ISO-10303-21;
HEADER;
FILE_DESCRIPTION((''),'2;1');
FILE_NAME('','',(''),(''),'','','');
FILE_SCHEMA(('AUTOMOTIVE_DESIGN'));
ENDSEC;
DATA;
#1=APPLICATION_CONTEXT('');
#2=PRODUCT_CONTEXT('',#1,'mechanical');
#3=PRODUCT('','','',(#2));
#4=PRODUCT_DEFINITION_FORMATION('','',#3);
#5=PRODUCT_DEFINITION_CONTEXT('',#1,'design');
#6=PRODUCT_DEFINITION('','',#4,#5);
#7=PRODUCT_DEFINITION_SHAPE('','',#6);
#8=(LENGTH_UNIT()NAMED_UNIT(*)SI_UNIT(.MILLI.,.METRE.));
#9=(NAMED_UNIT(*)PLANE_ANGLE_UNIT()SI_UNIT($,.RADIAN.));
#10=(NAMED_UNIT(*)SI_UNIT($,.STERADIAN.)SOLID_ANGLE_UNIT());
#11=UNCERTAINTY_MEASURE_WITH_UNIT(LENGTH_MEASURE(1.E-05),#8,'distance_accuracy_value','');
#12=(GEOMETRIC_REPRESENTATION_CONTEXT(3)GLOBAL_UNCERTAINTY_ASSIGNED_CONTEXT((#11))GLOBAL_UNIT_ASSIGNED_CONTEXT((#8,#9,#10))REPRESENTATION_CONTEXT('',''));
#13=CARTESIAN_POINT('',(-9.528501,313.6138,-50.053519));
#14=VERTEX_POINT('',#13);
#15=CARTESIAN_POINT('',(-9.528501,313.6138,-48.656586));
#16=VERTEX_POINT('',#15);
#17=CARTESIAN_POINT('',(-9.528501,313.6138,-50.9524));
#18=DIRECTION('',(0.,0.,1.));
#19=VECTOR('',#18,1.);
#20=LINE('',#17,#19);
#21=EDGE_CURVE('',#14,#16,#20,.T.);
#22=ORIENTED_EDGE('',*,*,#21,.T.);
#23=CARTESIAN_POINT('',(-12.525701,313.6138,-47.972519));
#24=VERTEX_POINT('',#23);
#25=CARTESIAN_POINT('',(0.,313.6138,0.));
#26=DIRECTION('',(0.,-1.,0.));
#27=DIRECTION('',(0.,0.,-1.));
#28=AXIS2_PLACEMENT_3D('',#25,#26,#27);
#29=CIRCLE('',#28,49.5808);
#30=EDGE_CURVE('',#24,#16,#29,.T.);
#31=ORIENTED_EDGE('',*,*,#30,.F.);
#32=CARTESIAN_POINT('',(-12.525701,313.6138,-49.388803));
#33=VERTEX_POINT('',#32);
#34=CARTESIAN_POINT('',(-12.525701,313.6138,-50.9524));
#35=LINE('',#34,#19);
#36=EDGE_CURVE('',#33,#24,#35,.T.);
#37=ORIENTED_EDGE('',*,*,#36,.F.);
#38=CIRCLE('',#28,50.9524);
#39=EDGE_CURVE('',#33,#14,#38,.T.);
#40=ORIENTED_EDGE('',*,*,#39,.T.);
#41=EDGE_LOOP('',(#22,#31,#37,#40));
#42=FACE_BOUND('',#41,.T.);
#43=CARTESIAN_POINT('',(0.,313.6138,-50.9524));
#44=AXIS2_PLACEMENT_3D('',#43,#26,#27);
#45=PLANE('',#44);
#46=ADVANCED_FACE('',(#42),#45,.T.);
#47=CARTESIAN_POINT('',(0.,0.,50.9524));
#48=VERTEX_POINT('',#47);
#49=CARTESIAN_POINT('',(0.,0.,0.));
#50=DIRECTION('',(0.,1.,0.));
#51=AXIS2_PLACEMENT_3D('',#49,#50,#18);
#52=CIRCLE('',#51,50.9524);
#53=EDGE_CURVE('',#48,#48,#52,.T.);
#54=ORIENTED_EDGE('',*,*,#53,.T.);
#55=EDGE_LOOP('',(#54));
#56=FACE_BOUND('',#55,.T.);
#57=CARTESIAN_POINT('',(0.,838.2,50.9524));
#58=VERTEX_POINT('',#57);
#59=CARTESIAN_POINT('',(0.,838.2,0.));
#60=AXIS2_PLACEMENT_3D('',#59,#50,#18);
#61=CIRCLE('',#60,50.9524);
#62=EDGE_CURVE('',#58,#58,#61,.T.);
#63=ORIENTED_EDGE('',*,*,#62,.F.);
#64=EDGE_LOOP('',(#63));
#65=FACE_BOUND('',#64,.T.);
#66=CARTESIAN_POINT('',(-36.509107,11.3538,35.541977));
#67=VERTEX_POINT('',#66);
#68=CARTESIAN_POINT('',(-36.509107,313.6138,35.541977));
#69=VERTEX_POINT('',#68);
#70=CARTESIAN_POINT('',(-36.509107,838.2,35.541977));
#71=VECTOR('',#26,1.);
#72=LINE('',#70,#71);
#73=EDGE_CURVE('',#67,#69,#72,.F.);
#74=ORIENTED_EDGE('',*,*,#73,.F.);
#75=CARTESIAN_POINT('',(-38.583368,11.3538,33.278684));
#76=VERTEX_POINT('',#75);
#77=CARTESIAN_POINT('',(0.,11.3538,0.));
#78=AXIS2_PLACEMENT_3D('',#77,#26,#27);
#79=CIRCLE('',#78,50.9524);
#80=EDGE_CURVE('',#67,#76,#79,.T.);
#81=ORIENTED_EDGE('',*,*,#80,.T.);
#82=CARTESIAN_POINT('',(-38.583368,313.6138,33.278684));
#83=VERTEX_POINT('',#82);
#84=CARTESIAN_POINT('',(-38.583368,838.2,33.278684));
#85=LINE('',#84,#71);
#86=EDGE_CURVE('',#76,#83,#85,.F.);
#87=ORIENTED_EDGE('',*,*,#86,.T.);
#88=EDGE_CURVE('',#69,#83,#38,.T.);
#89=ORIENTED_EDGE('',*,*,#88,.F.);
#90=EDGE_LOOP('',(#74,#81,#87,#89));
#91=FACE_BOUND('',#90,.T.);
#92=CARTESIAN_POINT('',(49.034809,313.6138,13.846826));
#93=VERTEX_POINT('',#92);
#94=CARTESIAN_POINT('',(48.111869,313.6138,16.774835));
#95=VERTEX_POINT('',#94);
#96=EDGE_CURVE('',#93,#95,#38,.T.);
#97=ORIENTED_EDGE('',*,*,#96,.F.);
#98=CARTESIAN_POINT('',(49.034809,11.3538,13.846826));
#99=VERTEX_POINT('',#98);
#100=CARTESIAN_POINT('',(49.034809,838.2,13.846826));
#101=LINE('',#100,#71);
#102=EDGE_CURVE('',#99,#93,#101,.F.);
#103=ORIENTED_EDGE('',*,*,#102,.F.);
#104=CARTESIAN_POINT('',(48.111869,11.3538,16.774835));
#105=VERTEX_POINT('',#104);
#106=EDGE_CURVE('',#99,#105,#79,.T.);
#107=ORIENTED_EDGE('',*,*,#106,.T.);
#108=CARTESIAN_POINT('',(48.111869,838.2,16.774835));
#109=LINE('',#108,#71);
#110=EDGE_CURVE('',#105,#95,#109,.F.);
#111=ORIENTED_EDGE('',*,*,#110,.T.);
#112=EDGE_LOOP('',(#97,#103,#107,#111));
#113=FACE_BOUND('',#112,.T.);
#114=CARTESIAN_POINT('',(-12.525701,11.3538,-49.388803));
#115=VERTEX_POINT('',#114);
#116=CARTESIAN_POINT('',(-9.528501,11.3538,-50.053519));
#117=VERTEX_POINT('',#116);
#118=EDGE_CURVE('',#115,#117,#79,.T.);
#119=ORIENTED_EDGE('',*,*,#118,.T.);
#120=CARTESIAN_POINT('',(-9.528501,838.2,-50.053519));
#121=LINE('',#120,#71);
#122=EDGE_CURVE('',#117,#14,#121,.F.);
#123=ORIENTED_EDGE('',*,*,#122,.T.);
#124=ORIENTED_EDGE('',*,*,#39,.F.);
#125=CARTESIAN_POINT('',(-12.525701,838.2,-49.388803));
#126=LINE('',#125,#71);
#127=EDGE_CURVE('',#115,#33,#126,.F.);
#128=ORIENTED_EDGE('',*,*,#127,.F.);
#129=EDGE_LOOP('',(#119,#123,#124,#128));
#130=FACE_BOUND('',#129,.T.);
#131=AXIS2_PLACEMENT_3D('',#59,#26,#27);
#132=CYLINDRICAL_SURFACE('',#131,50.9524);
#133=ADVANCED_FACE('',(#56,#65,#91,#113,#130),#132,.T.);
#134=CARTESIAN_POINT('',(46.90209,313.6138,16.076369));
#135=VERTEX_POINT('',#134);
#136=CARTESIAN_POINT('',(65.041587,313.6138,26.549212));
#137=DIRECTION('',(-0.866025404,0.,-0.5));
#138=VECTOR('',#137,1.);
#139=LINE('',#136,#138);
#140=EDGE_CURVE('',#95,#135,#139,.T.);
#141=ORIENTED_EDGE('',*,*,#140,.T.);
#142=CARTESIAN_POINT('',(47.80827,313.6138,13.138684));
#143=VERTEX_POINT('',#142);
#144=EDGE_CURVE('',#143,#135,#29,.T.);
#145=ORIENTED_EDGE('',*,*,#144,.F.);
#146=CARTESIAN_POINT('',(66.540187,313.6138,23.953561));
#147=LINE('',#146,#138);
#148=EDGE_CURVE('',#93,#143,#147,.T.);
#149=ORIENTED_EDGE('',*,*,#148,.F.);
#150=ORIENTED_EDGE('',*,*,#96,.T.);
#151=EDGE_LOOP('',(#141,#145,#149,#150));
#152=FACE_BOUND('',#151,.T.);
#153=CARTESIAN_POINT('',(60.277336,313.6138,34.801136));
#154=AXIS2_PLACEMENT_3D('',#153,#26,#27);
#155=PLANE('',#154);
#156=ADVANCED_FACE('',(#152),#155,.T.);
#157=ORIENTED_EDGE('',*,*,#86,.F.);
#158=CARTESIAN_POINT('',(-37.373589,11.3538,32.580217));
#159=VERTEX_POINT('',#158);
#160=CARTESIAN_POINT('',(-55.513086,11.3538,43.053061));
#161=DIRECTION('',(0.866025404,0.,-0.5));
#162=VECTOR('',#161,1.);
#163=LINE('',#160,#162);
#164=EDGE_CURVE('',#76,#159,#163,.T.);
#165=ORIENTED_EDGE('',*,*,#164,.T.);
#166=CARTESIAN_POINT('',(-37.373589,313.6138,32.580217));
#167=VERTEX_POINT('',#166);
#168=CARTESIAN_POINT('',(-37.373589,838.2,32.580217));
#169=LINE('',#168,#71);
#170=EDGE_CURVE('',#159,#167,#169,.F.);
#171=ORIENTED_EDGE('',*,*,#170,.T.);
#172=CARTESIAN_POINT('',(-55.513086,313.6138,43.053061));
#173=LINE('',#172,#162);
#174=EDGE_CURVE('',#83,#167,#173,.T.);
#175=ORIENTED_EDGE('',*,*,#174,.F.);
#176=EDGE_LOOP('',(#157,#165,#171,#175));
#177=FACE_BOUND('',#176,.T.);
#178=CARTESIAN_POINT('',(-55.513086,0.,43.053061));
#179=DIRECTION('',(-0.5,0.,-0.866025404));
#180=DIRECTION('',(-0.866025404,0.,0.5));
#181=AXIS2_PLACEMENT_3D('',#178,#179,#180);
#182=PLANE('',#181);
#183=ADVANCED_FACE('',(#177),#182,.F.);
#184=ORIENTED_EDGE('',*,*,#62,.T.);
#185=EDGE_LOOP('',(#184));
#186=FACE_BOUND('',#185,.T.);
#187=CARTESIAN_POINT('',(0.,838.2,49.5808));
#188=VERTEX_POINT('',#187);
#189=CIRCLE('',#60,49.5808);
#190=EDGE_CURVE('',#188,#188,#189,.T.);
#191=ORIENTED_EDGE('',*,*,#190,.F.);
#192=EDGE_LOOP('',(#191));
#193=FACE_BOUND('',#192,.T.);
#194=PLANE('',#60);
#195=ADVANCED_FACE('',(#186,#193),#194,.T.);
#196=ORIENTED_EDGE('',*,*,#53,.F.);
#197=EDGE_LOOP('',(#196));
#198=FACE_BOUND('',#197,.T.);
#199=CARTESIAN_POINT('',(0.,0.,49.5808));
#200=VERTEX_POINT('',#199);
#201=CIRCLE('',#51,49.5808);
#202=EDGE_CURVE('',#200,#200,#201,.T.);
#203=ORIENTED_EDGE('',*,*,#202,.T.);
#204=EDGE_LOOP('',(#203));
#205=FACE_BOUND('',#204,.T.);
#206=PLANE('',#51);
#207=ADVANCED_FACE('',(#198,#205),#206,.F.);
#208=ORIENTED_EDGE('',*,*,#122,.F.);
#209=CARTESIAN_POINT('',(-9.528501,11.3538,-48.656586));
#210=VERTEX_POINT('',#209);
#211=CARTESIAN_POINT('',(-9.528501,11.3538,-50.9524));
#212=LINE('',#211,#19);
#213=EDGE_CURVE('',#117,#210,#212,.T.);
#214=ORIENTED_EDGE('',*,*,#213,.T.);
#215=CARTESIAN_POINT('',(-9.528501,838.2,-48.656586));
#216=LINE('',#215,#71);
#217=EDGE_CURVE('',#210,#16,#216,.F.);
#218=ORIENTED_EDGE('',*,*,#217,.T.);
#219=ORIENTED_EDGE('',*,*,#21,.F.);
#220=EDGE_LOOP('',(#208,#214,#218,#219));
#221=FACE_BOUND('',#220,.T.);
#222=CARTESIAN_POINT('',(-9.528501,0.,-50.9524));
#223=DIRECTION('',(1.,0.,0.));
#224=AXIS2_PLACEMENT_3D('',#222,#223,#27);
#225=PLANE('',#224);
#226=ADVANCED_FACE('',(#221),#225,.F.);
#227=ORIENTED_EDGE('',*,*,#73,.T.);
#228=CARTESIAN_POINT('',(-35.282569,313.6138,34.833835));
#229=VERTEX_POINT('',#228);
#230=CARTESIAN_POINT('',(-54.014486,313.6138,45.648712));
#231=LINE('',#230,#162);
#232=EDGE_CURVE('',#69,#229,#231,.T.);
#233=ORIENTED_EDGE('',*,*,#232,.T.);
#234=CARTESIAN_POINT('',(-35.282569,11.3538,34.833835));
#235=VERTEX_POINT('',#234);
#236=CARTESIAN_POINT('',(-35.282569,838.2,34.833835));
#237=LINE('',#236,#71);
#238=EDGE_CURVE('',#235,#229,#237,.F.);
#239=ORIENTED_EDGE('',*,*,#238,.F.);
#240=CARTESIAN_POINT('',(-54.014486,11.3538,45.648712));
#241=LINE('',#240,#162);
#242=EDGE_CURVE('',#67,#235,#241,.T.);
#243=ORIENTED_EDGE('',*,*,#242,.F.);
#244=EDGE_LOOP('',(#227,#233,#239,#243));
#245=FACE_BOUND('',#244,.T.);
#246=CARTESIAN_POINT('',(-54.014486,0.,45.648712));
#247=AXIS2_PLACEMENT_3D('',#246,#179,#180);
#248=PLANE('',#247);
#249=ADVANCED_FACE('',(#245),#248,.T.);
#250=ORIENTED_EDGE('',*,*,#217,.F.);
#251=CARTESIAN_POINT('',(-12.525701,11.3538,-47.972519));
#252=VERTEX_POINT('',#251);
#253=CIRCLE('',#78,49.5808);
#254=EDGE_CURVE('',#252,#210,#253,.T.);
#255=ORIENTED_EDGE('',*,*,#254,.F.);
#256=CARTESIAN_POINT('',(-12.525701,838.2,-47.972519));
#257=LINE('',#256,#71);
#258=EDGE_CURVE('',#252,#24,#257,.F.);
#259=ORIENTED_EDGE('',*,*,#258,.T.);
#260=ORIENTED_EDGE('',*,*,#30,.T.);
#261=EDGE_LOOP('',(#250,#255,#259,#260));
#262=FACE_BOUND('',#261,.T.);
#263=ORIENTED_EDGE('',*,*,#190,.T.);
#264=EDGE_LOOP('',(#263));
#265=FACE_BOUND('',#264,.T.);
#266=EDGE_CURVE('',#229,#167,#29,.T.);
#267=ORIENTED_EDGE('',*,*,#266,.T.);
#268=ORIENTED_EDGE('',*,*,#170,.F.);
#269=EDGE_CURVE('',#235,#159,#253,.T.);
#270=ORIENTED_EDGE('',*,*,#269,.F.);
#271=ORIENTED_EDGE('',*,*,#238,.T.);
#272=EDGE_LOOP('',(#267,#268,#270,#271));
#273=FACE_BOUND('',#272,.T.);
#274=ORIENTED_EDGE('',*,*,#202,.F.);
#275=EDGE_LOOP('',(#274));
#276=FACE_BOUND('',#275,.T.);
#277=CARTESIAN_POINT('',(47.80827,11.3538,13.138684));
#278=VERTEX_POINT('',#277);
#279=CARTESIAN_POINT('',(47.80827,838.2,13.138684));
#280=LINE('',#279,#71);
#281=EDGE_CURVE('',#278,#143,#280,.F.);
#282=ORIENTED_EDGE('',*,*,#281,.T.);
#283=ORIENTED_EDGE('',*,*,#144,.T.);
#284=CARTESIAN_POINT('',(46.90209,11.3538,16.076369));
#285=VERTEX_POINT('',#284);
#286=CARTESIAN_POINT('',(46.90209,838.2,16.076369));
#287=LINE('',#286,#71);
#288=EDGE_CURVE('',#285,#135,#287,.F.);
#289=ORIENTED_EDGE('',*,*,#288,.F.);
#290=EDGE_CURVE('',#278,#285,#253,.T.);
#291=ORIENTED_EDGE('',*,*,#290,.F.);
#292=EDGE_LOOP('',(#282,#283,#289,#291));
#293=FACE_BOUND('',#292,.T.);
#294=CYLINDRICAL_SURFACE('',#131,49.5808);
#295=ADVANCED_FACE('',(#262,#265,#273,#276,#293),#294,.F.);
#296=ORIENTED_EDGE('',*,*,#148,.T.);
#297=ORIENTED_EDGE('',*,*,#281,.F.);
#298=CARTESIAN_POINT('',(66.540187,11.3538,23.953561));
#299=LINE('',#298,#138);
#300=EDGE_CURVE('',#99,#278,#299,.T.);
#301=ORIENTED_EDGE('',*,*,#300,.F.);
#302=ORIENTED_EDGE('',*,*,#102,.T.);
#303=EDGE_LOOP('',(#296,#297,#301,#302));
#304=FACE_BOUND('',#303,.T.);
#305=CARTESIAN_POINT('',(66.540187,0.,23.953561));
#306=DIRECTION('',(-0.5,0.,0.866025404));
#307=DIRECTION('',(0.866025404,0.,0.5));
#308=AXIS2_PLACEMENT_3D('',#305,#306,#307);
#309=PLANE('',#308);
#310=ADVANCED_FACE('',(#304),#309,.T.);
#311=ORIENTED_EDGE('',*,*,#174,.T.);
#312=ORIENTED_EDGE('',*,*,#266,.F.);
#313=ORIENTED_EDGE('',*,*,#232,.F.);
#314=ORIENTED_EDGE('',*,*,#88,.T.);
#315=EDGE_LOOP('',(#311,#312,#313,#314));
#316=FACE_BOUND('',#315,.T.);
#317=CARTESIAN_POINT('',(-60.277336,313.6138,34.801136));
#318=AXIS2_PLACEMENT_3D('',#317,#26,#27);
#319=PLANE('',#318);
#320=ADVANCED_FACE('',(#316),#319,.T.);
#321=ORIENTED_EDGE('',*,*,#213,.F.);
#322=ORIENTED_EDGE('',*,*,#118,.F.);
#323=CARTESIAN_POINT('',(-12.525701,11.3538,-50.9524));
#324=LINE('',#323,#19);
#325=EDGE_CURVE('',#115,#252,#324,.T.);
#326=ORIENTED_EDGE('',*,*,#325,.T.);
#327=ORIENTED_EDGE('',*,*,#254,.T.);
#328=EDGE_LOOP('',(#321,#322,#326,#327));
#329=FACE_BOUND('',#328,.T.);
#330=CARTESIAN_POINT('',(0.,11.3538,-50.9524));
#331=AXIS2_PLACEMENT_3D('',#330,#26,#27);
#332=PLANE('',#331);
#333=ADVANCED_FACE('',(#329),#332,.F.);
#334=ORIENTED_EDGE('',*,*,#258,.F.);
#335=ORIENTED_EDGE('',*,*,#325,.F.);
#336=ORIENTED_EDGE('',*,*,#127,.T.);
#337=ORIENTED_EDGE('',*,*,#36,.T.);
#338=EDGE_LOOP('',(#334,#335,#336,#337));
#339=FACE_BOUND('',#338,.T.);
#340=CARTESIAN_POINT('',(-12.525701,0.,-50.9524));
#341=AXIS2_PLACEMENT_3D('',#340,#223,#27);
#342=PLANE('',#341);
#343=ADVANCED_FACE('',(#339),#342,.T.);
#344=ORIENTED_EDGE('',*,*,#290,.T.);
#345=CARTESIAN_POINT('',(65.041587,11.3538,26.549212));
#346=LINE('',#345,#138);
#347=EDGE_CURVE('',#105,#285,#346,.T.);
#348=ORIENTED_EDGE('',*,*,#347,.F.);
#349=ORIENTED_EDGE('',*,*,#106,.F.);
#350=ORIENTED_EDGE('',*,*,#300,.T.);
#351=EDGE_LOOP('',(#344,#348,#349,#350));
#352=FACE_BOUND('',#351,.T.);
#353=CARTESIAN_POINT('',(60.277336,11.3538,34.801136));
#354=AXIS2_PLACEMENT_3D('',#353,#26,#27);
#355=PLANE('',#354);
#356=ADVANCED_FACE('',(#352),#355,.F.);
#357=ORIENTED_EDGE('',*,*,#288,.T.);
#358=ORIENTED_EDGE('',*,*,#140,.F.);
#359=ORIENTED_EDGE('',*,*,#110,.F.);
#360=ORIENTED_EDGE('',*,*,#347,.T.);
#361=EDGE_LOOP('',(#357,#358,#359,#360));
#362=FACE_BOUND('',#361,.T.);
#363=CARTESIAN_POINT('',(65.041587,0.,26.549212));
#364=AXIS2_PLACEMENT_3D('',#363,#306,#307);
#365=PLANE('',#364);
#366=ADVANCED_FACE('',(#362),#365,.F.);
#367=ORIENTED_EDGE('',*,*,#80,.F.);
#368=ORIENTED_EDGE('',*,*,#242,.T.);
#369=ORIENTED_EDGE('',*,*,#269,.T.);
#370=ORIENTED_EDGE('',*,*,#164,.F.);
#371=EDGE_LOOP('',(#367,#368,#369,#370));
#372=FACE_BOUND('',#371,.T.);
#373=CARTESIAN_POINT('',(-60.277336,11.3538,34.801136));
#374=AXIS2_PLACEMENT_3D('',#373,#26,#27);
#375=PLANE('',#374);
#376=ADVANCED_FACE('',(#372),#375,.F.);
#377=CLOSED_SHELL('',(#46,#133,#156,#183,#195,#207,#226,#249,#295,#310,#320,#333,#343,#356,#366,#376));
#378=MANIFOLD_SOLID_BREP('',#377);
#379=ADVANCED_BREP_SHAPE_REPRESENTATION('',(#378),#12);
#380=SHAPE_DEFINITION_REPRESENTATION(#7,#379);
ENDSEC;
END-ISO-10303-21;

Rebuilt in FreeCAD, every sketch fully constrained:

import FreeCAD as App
import Part
import Sketcher
from FreeCAD import Vector
Q = App.Units.Quantity

doc = App.newDocument("Part")
body = doc.addObject("PartDesign::Body", "Body")

sketch1 = doc.addObject("Sketcher::SketchObject", "Sketch")
body.addObject(sketch1)
sketch1.AttachmentSupport = (doc.XZ_Plane, [""])
sketch1.MapMode = "FlatFace"
sketch1.addGeometry([
    Part.Circle(Vector(0, 0, 0), Vector(0, 0, 1), 51),
    Part.Circle(Vector(0, 0, 0), Vector(0, 0, 1), 50),
], False)
sketch1.addConstraint([
    Sketcher.Constraint("Coincident", 0, 3, -1, 1),
    Sketcher.Constraint("Coincident", 1, 3, -1, 1),
    Sketcher.Constraint("Diameter", 0, Q("4.012 in")),
    Sketcher.Constraint("Diameter", 1, Q("3.904 in")),
])
pad1 = doc.addObject("PartDesign::Pad", "Pad")
body.addObject(pad1)
pad1.Profile = sketch1
pad1.Length = Q("33 in")
pad1.Reversed = True

sketch2 = doc.addObject("Sketcher::SketchObject", "Sketch001")
body.addObject(sketch2)
sketch2.AttachmentSupport = (doc.XY_Plane, [""])
sketch2.MapMode = "FlatFace"
sketch2.addGeometry([
    Part.LineSegment(Vector(-12.5, 313.6, 0), Vector(-12.5, 11.4, 0)),
    Part.LineSegment(Vector(-12.5, 11.4, 0), Vector(-9.5, 11.4, 0)),
    Part.LineSegment(Vector(-9.5, 11.4, 0), Vector(-9.5, 313.6, 0)),
    Part.LineSegment(Vector(-9.5, 313.6, 0), Vector(-12.5, 313.6, 0)),
], False)
sketch2.addConstraint([
    Sketcher.Constraint("Coincident", 0, 2, 1, 1),
    Sketcher.Constraint("Coincident", 1, 2, 2, 1),
    Sketcher.Constraint("Coincident", 2, 2, 3, 1),
    Sketcher.Constraint("Coincident", 3, 2, 0, 1),
    Sketcher.Constraint("Vertical", 0),
    Sketcher.Constraint("Horizontal", 1),
    Sketcher.Constraint("Vertical", 2),
    Sketcher.Constraint("Horizontal", 3),
    Sketcher.Constraint("DistanceY", 0, 2, 0, 1, Q("11.9 in")),
    Sketcher.Constraint("DistanceX", 1, 1, 1, 2, Q("0.118 in")),
    Sketcher.Constraint("DistanceY", -1, 1, 0, 2, Q("0.447 in")),
    Sketcher.Constraint("DistanceX", 0, 2, -1, 1, 12.525701),
])
pocket1 = doc.addObject("PartDesign::Pocket", "Pocket")
body.addObject(pocket1)
pocket1.Profile = sketch2
pocket1.Type = "ThroughAll"
doc.recompute()

polarpattern = doc.addObject("PartDesign::PolarPattern", "PolarPattern")
body.addObject(polarpattern)
polarpattern.Originals = [pocket1]
polarpattern.Axis = (doc.Y_Axis, [""])
polarpattern.Angle = 360
polarpattern.Occurrences = 3
body.Tip = polarpattern

doc.recompute()
